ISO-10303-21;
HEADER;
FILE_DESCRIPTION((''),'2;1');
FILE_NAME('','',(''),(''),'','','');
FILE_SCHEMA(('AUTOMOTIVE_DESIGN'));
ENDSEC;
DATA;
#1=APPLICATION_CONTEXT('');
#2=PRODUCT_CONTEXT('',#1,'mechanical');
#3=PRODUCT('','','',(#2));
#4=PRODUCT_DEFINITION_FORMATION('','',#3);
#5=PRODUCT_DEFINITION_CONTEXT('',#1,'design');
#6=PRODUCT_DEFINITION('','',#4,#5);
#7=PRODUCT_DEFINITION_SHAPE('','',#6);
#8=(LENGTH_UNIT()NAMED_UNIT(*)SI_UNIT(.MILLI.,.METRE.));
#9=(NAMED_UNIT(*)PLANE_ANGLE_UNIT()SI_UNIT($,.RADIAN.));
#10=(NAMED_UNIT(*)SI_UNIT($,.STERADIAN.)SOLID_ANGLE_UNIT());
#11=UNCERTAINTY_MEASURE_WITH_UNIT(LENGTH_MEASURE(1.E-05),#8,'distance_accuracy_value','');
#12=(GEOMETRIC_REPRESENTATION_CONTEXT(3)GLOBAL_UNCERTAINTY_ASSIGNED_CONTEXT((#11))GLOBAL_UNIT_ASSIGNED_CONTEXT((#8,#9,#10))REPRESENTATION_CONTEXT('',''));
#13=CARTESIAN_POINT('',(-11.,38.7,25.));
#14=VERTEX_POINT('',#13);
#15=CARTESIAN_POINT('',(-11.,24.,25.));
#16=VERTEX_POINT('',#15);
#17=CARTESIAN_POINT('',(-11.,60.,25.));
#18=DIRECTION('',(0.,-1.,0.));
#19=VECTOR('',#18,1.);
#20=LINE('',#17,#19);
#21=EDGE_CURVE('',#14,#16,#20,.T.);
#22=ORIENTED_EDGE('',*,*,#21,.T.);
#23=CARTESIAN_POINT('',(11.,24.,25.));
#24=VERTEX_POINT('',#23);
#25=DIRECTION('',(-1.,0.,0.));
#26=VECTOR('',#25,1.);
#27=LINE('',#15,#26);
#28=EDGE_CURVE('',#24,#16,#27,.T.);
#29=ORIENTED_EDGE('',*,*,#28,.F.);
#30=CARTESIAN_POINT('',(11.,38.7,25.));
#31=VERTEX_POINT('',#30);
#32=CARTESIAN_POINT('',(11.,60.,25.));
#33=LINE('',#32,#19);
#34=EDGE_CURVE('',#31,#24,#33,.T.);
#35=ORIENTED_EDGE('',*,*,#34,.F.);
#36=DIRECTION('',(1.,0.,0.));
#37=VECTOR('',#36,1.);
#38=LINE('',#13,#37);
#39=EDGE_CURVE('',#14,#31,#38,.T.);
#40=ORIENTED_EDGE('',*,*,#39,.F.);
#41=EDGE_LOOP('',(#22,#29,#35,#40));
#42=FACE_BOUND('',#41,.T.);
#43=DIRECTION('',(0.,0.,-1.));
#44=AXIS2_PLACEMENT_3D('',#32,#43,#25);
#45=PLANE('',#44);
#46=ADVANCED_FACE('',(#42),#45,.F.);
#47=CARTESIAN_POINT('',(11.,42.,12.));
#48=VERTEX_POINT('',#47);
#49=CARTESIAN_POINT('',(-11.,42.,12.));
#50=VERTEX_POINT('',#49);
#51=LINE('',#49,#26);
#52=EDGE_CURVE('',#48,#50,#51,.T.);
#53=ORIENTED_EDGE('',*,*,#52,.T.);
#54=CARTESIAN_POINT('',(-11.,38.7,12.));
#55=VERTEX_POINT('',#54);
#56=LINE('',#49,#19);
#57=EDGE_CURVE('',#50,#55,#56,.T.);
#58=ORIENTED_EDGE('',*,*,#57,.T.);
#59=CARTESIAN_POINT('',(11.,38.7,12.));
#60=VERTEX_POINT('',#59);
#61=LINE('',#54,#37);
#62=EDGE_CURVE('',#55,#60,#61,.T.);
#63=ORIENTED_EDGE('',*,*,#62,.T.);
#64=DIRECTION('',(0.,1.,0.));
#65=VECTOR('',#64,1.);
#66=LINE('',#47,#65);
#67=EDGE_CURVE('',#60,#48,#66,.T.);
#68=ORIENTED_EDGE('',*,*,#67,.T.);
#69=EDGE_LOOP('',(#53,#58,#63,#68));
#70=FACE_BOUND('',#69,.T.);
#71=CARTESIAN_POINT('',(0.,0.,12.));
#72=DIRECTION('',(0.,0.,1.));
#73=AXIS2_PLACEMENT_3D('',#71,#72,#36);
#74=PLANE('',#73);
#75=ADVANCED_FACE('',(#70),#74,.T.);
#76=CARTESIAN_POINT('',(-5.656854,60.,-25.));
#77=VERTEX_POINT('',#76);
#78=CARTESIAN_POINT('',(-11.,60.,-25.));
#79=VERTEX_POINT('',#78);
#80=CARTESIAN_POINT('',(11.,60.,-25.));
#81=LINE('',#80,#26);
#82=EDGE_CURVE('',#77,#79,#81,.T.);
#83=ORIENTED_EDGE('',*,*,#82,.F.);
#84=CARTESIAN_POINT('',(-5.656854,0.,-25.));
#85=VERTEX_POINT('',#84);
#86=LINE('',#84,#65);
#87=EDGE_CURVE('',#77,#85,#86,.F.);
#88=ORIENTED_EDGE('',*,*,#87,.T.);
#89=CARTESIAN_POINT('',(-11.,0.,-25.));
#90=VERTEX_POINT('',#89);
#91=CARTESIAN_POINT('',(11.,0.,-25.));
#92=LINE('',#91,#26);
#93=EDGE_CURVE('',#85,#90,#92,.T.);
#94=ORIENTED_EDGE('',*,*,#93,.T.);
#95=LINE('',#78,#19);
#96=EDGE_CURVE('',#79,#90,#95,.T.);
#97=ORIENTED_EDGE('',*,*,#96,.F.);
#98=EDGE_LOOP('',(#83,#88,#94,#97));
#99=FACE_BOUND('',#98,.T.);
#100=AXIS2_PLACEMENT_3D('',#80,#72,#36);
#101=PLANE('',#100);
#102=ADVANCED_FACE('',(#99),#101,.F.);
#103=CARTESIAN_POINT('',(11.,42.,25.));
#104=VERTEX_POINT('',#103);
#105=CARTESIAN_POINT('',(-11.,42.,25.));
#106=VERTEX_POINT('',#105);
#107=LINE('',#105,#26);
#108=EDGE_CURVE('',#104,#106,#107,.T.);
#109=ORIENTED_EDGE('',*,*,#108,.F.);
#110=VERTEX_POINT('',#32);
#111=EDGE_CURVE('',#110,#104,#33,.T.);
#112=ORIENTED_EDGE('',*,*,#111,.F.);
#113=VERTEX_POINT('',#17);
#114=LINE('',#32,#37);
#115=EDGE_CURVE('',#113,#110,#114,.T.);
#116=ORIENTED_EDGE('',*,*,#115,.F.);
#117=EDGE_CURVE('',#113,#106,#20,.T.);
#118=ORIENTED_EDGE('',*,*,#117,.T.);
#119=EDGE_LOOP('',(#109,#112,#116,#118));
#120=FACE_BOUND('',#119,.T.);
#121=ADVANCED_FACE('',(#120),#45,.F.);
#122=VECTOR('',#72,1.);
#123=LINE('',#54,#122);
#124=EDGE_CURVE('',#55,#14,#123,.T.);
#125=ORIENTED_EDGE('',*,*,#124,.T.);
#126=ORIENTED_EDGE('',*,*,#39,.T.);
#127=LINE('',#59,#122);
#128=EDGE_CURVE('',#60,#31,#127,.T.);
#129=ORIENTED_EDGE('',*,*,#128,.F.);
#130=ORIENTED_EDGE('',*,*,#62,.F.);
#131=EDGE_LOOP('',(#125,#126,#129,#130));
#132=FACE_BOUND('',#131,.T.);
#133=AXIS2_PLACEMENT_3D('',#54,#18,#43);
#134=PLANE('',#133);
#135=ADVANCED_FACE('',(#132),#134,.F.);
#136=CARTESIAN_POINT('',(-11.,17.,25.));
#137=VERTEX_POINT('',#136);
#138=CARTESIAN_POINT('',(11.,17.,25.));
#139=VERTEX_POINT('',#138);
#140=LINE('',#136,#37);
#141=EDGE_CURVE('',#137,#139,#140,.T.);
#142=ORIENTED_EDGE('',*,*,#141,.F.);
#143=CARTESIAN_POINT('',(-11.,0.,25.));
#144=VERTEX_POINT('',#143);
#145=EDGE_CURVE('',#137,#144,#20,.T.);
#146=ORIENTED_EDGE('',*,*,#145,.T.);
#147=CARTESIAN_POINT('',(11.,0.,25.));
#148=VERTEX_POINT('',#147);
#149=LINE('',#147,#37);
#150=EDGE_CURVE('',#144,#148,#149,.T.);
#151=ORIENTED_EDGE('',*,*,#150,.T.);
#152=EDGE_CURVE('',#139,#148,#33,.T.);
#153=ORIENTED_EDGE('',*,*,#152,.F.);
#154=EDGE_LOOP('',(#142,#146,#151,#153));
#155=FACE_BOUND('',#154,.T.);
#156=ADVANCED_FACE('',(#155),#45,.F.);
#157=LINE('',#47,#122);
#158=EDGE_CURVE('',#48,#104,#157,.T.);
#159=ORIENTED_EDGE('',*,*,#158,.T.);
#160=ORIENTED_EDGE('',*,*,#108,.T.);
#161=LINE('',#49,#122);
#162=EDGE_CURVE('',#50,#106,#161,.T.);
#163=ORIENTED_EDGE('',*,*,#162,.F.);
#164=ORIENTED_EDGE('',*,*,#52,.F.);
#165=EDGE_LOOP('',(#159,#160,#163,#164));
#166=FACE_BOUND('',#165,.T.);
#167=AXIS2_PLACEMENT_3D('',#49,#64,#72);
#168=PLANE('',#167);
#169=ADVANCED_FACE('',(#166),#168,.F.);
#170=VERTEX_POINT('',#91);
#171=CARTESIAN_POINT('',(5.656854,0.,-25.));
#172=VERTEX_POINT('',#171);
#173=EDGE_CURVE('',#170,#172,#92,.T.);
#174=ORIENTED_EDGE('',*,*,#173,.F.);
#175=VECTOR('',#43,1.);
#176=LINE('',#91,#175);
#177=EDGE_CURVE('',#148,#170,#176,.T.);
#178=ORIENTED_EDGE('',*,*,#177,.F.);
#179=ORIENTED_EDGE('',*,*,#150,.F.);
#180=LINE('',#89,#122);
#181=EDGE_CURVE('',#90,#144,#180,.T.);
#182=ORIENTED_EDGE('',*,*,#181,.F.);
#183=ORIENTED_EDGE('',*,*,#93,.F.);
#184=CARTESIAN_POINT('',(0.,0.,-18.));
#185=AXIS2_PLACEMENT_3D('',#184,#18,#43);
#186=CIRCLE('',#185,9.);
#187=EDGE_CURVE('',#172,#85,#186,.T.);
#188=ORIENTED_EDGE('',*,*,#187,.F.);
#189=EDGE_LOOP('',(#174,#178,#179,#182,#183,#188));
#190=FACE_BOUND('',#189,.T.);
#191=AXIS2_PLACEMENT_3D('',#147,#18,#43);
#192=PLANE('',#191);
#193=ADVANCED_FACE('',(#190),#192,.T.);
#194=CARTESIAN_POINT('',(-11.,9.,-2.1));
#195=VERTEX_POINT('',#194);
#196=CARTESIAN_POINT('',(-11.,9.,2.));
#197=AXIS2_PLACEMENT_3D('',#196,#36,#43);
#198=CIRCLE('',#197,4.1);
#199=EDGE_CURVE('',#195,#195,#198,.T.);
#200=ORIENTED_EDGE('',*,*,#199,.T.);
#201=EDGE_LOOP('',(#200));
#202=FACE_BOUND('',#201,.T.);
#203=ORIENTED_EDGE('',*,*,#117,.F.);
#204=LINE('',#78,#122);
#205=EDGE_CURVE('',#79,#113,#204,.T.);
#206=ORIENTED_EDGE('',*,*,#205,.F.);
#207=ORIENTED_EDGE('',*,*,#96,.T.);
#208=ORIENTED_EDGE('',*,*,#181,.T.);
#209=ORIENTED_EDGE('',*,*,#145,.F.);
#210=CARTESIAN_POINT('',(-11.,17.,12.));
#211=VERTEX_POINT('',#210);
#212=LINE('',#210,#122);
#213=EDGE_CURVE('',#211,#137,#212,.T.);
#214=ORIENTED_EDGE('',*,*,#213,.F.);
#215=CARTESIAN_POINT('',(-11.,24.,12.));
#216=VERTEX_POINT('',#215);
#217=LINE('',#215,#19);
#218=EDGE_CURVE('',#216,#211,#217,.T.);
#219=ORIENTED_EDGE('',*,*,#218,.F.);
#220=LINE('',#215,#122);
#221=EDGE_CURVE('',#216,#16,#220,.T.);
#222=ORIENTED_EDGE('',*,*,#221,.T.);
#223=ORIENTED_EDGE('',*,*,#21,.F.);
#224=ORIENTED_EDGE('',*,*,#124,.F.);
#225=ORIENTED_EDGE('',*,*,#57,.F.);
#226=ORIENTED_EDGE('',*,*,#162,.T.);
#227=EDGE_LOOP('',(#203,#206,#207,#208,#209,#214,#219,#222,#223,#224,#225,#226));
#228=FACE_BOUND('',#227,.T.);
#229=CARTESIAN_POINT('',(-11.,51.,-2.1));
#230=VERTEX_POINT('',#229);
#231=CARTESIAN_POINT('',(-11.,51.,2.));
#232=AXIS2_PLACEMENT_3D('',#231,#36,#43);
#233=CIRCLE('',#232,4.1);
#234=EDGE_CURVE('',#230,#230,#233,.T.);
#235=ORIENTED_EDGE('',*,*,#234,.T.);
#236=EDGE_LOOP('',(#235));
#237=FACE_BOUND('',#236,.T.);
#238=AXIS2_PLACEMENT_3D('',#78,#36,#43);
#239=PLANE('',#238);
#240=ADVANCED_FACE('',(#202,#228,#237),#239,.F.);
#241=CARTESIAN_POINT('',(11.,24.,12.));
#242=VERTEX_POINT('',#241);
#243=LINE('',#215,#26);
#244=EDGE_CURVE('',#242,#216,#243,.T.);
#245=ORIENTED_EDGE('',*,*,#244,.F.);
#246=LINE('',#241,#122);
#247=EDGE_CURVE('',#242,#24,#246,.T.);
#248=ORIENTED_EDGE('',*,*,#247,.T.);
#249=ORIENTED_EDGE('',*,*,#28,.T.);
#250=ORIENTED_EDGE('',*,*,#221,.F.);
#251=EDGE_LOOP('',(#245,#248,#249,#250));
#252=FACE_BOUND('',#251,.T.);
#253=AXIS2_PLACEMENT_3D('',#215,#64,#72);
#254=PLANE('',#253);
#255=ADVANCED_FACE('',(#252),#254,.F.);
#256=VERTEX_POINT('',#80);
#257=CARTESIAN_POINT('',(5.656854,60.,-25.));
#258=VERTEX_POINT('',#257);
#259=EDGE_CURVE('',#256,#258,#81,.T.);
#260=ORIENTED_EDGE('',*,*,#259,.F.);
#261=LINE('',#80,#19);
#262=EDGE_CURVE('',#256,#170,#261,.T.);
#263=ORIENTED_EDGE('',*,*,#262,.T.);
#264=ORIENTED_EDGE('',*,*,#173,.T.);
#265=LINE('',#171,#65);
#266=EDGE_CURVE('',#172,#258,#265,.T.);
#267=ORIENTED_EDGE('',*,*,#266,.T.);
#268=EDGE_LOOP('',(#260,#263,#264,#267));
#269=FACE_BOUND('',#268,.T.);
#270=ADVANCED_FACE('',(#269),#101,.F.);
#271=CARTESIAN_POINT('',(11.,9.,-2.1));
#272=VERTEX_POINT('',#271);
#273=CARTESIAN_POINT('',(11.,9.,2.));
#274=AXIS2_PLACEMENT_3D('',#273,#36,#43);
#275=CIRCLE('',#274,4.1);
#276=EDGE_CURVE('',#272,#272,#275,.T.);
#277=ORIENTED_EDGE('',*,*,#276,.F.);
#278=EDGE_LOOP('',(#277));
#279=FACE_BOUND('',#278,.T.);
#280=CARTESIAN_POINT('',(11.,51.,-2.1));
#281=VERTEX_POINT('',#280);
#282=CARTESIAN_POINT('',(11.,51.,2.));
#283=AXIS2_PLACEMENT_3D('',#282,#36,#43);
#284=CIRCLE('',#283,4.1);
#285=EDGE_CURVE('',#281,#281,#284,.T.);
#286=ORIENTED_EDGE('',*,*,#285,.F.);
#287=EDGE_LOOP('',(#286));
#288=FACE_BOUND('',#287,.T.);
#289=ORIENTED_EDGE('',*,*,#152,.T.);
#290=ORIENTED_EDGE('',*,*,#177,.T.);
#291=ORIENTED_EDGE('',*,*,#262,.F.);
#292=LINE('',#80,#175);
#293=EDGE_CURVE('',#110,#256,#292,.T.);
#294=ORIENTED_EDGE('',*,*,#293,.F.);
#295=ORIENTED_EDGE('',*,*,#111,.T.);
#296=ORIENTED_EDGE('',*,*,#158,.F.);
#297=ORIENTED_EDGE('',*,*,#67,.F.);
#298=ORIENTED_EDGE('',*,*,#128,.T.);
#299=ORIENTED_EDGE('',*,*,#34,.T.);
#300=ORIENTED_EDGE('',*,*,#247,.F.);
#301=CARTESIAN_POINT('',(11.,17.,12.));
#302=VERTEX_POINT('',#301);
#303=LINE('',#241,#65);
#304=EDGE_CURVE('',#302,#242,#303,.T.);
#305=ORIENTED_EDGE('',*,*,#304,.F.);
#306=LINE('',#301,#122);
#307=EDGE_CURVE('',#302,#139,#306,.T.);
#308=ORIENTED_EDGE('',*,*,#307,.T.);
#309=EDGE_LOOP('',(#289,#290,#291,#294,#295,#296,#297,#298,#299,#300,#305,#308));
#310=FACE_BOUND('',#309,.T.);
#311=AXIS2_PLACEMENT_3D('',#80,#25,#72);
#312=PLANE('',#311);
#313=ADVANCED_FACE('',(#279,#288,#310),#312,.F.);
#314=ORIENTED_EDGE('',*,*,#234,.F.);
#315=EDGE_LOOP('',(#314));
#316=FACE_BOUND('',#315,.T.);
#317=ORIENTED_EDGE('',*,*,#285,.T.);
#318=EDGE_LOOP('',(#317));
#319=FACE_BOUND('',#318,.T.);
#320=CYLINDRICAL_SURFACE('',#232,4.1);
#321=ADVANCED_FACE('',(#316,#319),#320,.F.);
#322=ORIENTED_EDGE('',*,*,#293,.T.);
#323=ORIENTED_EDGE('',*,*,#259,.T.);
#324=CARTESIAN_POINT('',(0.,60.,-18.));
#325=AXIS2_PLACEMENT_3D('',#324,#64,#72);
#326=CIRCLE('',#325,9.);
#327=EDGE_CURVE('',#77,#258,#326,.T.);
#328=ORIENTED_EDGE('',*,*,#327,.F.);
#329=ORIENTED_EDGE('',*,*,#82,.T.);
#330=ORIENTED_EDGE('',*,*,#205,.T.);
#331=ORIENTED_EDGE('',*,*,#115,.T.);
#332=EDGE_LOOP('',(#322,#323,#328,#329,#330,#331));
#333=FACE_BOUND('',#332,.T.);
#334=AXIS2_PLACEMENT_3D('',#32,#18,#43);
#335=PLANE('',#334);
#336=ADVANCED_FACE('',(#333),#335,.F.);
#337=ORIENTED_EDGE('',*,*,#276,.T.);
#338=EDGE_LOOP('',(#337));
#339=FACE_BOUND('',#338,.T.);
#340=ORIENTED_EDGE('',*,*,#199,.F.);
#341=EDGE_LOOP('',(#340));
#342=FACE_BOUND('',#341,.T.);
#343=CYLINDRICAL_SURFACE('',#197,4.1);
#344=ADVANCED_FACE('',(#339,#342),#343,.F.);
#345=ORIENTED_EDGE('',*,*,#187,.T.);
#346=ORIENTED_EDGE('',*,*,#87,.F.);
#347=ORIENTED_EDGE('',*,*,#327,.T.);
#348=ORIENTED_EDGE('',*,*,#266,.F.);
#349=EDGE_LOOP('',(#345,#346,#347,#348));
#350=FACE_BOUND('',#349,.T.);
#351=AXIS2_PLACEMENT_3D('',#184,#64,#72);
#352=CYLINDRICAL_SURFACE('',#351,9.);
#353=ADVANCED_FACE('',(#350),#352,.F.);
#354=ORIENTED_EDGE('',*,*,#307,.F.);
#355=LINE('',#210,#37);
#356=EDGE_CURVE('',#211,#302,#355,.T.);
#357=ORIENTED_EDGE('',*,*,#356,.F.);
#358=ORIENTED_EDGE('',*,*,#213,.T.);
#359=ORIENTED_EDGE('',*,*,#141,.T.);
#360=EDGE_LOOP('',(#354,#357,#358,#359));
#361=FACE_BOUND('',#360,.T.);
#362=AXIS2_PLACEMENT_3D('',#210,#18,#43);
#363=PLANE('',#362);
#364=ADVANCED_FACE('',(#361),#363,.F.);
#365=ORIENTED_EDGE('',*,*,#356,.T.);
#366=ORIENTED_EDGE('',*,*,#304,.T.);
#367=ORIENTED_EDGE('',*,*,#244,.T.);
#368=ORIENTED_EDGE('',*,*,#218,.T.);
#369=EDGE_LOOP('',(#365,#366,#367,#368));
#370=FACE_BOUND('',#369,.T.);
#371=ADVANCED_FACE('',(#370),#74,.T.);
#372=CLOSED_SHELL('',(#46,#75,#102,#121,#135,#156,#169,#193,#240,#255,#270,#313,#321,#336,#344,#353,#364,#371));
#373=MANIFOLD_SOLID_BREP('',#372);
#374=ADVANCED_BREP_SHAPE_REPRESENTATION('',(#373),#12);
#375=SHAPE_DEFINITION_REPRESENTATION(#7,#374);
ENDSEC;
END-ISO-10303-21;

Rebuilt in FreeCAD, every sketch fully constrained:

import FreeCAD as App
import Part
import Sketcher


def add_polygon(sketch, points):
    """Adds a closed chain of lines whose ends are joined by coincident constraints."""
    first, n = sketch.GeometryCount, len(points)
    for a, b in zip(points, points[1:] + points[:1]):
        sketch.addGeometry(Part.LineSegment(App.Vector(*a, 0), App.Vector(*b, 0)), False)
    for i in range(n):
        sketch.addConstraint(Sketcher.Constraint("Coincident", first + i, 2, first + (i + 1) % n, 1))

doc = App.newDocument("Part")
params = doc.addObject("Spreadsheet::Sheet", "Params")
for row, (alias, value) in enumerate([
    ("sketch1_width", "22 mm"),
    ("sketch1_height", "50 mm"),
    ("pad1_length", "60 mm"),
    ("sketch2_diameter", "8.2 mm"),
    ("sketch3_diameter", "18 mm"),
    ("sketch4_width", "22 mm"),
    ("sketch4_height", "7 mm"),
    ("sketch4_height2", "3.3 mm"),
    ("pocket3_length", "13 mm"),
], start=1):
    params.set(f"A{row}", alias)
    params.set(f"B{row}", "=" + value)
    params.setAlias(f"B{row}", alias)

body = doc.addObject("PartDesign::Body", "Body")

sketch1 = body.newObject("Sketcher::SketchObject", "Sketch")
sketch1.AttachmentSupport = (doc.getObject("XZ_Plane"), [""])
sketch1.MapMode = "FlatFace"
add_polygon(sketch1, [(-11, -25), (-11, 25), (11, 25), (11, -25)])
sketch1.addConstraint(Sketcher.Constraint("Vertical", 0))
sketch1.addConstraint(Sketcher.Constraint("Horizontal", 1))
sketch1.addConstraint(Sketcher.Constraint("Vertical", 2))
sketch1.addConstraint(Sketcher.Constraint("Horizontal", 3))
sketch1.addConstraint(Sketcher.Constraint("Symmetric", 0, 2, 2, 2, -1, 1))
sketch1.addConstraint(Sketcher.Constraint("DistanceX", 1, 1, 1, 2, 22.0))
sketch1.addConstraint(Sketcher.Constraint("DistanceY", 0, 1, 0, 2, 50.0))
sketch1.setExpression("Constraints[9]", "Params.sketch1_width")
sketch1.setExpression("Constraints[10]", "Params.sketch1_height")
pad1 = body.newObject("PartDesign::Pad", "Pad")
pad1.Profile = sketch1
pad1.setExpression("Length", "Params.pad1_length")
pad1.Reversed = True

sketch2 = body.newObject("Sketcher::SketchObject", "Sketch001")
sketch2.AttachmentSupport = (doc.getObject("YZ_Plane"), [""])
sketch2.MapMode = "FlatFace"
sketch2.AttachmentOffset = App.Placement(App.Vector(0, 0, 11), App.Rotation())
sketch2.addGeometry(Part.Circle(App.Vector(51, 2, 0), App.Vector(0, 0, 1), 4.1), False)
sketch2.addGeometry(Part.Circle(App.Vector(9, 2, 0), App.Vector(0, 0, 1), 4.1), False)
sketch2.addConstraint(Sketcher.Constraint("Equal", 0, 1))
sketch2.addConstraint(Sketcher.Constraint("Horizontal", 0, 3, 1, 3))
sketch2.addConstraint(Sketcher.Constraint("Diameter", 0, 8.2))
sketch2.addConstraint(Sketcher.Constraint("DistanceX", -1, 1, 0, 3, 51.0))
sketch2.addConstraint(Sketcher.Constraint("DistanceY", -1, 1, 0, 3, 2.0))
sketch2.addConstraint(Sketcher.Constraint("DistanceX", -1, 1, 1, 3, 9.0))
sketch2.setExpression("Constraints[2]", "Params.sketch2_diameter")
pocket1 = body.newObject("PartDesign::Pocket", "Pocket")
pocket1.Profile = sketch2
pocket1.Type = "ThroughAll"

sketch3 = body.newObject("Sketcher::SketchObject", "Sketch002")
sketch3.AttachmentSupport = (doc.getObject("XZ_Plane"), [""])
sketch3.MapMode = "FlatFace"
sketch3.AttachmentOffset = App.Placement(App.Vector(0, 0, -60), App.Rotation())
sketch3.addGeometry(Part.Circle(App.Vector(0, -18, 0), App.Vector(0, 0, 1), 9), False)
sketch3.addConstraint(Sketcher.Constraint("PointOnObject", 0, 3, -2))
sketch3.addConstraint(Sketcher.Constraint("Diameter", 0, 18.0))
sketch3.addConstraint(Sketcher.Constraint("DistanceY", 0, 3, -1, 1, 18.0))
sketch3.setExpression("Constraints[1]", "Params.sketch3_diameter")
pocket2 = body.newObject("PartDesign::Pocket", "Pocket001")
pocket2.Profile = sketch3
pocket2.Type = "ThroughAll"
pocket2.Reversed = True

sketch4 = body.newObject("Sketcher::SketchObject", "Sketch003")
sketch4.AttachmentSupport = (doc.getObject("XY_Plane"), [""])
sketch4.MapMode = "FlatFace"
sketch4.AttachmentOffset = App.Placement(App.Vector(0, 0, 25), App.Rotation())
add_polygon(sketch4, [(-11, 42), (-11, 38.7), (11, 38.7), (11, 42)])
add_polygon(sketch4, [(-11, 24), (-11, 17), (11, 17), (11, 24)])
sketch4.addConstraint(Sketcher.Constraint("Vertical", 0))
sketch4.addConstraint(Sketcher.Constraint("Horizontal", 1))
sketch4.addConstraint(Sketcher.Constraint("Vertical", 2))
sketch4.addConstraint(Sketcher.Constraint("Horizontal", 3))
sketch4.addConstraint(Sketcher.Constraint("Vertical", 4))
sketch4.addConstraint(Sketcher.Constraint("Horizontal", 5))
sketch4.addConstraint(Sketcher.Constraint("Vertical", 6))
sketch4.addConstraint(Sketcher.Constraint("Horizontal", 7))
sketch4.addConstraint(Sketcher.Constraint("Vertical", 3, 2, 4, 2))
sketch4.addConstraint(Sketcher.Constraint("Vertical", 2, 2, 5, 2))
sketch4.addConstraint(Sketcher.Constraint("DistanceX", 1, 1, 1, 2, 22.0))
sketch4.addConstraint(Sketcher.Constraint("DistanceY", 4, 2, 4, 1, 7.0))
sketch4.addConstraint(Sketcher.Constraint("DistanceY", 0, 2, 0, 1, 3.3))
sketch4.addConstraint(Sketcher.Constraint("DistanceX", 0, 2, -1, 1, 11.0))
sketch4.addConstraint(Sketcher.Constraint("DistanceY", -1, 1, 2, 2, 42.0))
sketch4.addConstraint(Sketcher.Constraint("DistanceY", -1, 1, 4, 2, 17.0))
sketch4.setExpression("Constraints[18]", "Params.sketch4_width")
sketch4.setExpression("Constraints[19]", "Params.sketch4_height")
sketch4.setExpression("Constraints[20]", "Params.sketch4_height2")
pocket3 = body.newObject("PartDesign::Pocket", "Pocket002")
pocket3.Profile = sketch4
pocket3.setExpression("Length", "Params.pocket3_length")

doc.recompute()
